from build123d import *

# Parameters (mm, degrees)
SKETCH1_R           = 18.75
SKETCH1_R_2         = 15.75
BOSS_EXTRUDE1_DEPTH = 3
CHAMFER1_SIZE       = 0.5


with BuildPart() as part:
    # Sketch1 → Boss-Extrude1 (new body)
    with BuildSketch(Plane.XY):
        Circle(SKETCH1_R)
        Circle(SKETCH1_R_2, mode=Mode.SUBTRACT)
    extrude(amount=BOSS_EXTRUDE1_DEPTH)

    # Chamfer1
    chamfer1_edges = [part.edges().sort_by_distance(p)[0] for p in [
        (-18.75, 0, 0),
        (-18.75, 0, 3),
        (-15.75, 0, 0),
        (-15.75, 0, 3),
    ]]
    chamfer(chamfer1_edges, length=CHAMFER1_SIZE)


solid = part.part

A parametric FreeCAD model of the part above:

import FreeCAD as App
import Part
import Sketcher
from FreeCAD import Vector


def edges_at(feature, points):
    """Names of the edges that pass closest to the given points."""
    edges = feature.Shape.Edges
    near = lambda p: min(range(len(edges)), key=lambda i: edges[i].distToShape(Part.Vertex(*p))[0])
    return sorted({f"Edge{near(p) + 1}" for p in points})

doc = App.newDocument("Part")
body = doc.addObject("PartDesign::Body", "Body")

sketch1 = body.newObject("Sketcher::SketchObject", "Sketch")
sketch1.AttachmentSupport = (doc.getObject("XY_Plane"), [""])
sketch1.MapMode = "FlatFace"
sketch1.addGeometry([
    Part.Circle(Vector(0, 0, 0), Vector(0, 0, 1), 18.75),
    Part.Circle(Vector(0, 0, 0), Vector(0, 0, 1), 15.75),
], False)
sketch1.addConstraint([
    Sketcher.Constraint("Coincident", 0, 3, -1, 1),
    Sketcher.Constraint("Coincident", 1, 3, -1, 1),
    Sketcher.Constraint("Diameter", 0, 37.5),
    Sketcher.Constraint("Diameter", 1, 31.5),
])
pad1 = body.newObject("PartDesign::Pad", "Pad")
pad1.Profile = sketch1
pad1.Length = 3
doc.recompute()

chamfer = body.newObject("PartDesign::Chamfer", "Chamfer")
chamfer.Base = (pad1, edges_at(pad1, [
    (-18.75, 0, 0),
    (-18.75, 0, 3),
    (-15.75, 0, 0),
    (-15.75, 0, 3),
]))
chamfer.Size = 0.5

doc.recompute()
